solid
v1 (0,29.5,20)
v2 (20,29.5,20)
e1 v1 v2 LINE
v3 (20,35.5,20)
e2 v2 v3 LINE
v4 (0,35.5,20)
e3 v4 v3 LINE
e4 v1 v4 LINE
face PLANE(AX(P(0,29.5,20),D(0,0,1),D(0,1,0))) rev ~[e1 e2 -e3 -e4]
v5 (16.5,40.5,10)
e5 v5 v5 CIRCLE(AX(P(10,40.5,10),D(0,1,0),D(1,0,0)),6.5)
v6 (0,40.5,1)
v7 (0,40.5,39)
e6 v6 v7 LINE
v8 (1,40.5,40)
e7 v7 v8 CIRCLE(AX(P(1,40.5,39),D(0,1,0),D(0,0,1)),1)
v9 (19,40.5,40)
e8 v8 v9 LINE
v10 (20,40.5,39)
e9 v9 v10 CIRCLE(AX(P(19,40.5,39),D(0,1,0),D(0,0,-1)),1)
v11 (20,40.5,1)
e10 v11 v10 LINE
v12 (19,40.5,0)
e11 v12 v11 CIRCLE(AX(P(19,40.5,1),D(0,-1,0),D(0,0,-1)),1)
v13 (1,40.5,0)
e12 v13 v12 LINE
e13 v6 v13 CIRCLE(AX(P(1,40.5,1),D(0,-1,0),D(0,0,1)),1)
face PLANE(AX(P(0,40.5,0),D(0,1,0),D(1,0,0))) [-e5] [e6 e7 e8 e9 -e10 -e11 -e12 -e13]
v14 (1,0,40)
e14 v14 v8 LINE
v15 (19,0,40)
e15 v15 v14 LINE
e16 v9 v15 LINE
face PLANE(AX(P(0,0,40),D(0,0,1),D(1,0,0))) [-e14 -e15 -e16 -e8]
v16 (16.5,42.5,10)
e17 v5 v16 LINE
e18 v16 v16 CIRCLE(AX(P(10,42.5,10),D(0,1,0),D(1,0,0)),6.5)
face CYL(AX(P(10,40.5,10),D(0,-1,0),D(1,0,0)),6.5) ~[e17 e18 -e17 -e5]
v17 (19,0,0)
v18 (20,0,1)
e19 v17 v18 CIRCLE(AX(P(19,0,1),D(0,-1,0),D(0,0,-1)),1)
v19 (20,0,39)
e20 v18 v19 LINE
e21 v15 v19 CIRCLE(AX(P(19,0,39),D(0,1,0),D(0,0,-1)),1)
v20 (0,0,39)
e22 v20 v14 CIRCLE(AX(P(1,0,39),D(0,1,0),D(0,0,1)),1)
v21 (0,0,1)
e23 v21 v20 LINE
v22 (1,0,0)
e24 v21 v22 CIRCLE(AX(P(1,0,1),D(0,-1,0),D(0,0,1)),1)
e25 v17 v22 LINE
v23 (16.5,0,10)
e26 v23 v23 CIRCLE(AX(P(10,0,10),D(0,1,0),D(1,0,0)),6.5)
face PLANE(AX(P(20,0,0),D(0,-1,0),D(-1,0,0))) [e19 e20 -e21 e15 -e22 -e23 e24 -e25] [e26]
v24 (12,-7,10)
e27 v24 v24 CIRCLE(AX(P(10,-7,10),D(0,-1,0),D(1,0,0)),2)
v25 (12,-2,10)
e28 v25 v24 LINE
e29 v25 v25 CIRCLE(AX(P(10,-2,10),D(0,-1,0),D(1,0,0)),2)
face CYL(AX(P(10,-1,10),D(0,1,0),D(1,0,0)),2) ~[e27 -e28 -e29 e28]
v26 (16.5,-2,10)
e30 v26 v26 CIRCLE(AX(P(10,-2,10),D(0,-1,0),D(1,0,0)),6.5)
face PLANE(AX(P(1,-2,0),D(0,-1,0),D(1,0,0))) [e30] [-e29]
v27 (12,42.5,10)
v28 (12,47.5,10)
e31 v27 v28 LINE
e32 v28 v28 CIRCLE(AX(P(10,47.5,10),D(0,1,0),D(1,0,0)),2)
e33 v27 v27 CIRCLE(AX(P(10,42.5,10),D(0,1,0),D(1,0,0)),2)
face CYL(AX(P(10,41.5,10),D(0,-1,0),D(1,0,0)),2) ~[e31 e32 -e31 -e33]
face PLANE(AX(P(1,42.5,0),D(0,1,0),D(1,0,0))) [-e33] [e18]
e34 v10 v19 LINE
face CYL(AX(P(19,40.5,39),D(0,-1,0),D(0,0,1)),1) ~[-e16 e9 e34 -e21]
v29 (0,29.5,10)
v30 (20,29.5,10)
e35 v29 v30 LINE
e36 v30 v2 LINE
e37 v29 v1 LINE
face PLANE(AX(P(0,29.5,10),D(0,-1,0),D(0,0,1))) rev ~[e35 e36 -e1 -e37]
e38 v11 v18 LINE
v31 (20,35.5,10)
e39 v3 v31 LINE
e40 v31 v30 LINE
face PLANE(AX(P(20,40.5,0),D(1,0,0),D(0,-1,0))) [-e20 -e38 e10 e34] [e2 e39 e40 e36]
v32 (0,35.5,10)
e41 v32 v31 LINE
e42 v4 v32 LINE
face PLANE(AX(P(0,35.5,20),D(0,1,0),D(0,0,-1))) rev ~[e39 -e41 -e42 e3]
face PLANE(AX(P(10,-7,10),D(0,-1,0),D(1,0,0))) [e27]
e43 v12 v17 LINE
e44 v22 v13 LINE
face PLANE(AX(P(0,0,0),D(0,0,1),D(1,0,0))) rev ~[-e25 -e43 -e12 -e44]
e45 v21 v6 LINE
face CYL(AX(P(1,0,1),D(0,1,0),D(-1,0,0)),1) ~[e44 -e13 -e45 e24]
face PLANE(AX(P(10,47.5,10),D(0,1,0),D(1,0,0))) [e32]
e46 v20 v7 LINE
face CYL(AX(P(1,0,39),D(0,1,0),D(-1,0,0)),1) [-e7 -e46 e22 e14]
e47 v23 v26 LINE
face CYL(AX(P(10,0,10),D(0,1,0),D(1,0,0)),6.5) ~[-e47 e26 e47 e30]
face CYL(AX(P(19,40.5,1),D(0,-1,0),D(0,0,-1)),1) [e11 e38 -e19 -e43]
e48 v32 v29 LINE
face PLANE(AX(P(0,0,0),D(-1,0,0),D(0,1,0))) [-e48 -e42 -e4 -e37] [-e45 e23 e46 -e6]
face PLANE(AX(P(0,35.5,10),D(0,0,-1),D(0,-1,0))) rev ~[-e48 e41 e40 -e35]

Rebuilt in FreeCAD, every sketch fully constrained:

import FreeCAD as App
import Part
import Sketcher

V = App.Vector
Q = App.Units.Quantity


def edges_at(feature, points):
    """Names of the edges that pass closest to the given points."""
    edges = feature.Shape.Edges
    near = lambda p: min(range(len(edges)), key=lambda i: edges[i].distToShape(Part.Vertex(*p))[0])
    return sorted({f"Edge{near(p) + 1}" for p in points})

doc = App.newDocument("Part")
params = doc.addObject("Spreadsheet::Sheet", "Params")
for row, (alias, value) in enumerate([
    ("sketch1_width", "20 mm"),
    ("sketch1_height", "40.5 mm"),
    ("pad1_length", "40 mm"),
    ("sketch2_diameter", "10 mm"),
    ("pad2_length", "1 mm"),
    ("sketch3_diameter", "4 mm"),
    ("pad3_length", "6 mm"),
    ("fillet_radius", "1 mm"),
    ("sketch4_diameter", "10 mm"),
    ("pad4_length", "1 mm"),
    ("sketch5_diameter", "4 mm"),
    ("pad5_length", "6 mm"),
    ("sketch6_width", "6 mm"),
    ("sketch6_height", "10 mm"),
    ("sketch7_diameter", "13 mm"),
    ("sketch7_diameter2", "4 mm"),
    ("pad6_length", "2 mm"),
    ("sketch8_diameter", "13 mm"),
    ("sketch8_diameter2", "4 mm"),
    ("pad7_length", "2 mm"),
], start=1):
    params.set(f"A{row}", alias)
    params.set(f"B{row}", "=" + value)
    params.setAlias(f"B{row}", alias)

body = doc.addObject("PartDesign::Body", "Body")

# Sketch on XY plane
sketch1 = doc.addObject("Sketcher::SketchObject", "Sketch")
body.addObject(sketch1)
sketch1.AttachmentSupport = (doc.XY_Plane, [""])
sketch1.MapMode = "FlatFace"
sketch1.addGeometry([
    Part.LineSegment(V(0, 40.5, 0), V(0, 0, 0)),
    Part.LineSegment(V(0, 0, 0), V(20, 0, 0)),
    Part.LineSegment(V(20, 0, 0), V(20, 40.5, 0)),
    Part.LineSegment(V(20, 40.5, 0), V(0, 40.5, 0)),
], False)
sketch1.addConstraint([
    Sketcher.Constraint("Coincident", 0, 2, 1, 1),
    Sketcher.Constraint("Coincident", 1, 2, 2, 1),
    Sketcher.Constraint("Coincident", 2, 2, 3, 1),
    Sketcher.Constraint("Coincident", 3, 2, 0, 1),
    Sketcher.Constraint("Vertical", 0),
    Sketcher.Constraint("Horizontal", 1),
    Sketcher.Constraint("Vertical", 2),
    Sketcher.Constraint("Horizontal", 3),
    Sketcher.Constraint("Coincident", 0, 2, -1, 1),
    Sketcher.Constraint("DistanceX", 1, 1, 1, 2, Q("20 mm")),
    Sketcher.Constraint("DistanceY", 0, 2, 0, 1, Q("40.5 mm")),
])
sketch1.setExpression("Constraints[9]", "Params.sketch1_width")
sketch1.setExpression("Constraints[10]", "Params.sketch1_height")
pad1 = doc.addObject("PartDesign::Pad", "Pad")
body.addObject(pad1)
pad1.Profile = sketch1
pad1.setExpression("Length", "Params.pad1_length")

# Sketch on XZ plane
sketch2 = doc.addObject("Sketcher::SketchObject", "Sketch001")
body.addObject(sketch2)
sketch2.AttachmentSupport = (doc.XZ_Plane, [""])
sketch2.MapMode = "FlatFace"
sketch2.AttachmentOffset = App.Placement(V(0, 0, -40.5), App.Rotation())
sketch2.addGeometry(Part.Circle(V(10, 10, 0), V(0, 0, 1), 5), False)
sketch2.addConstraint([
    Sketcher.Constraint("Diameter", 0, Q("10 mm")),
    Sketcher.Constraint("DistanceX", -1, 1, 0, 3, Q("10 mm")),
    Sketcher.Constraint("DistanceY", -1, 1, 0, 3, Q("10 mm")),
])
sketch2.setExpression("Constraints[0]", "Params.sketch2_diameter")
pad2 = doc.addObject("PartDesign::Pad", "Pad001")
body.addObject(pad2)
pad2.Profile = sketch2
pad2.setExpression("Length", "Params.pad2_length")
pad2.Reversed = True

# Sketch on XZ plane
sketch3 = doc.addObject("Sketcher::SketchObject", "Sketch002")
body.addObject(sketch3)
sketch3.AttachmentSupport = (doc.XZ_Plane, [""])
sketch3.MapMode = "FlatFace"
sketch3.AttachmentOffset = App.Placement(V(0, 0, -41.5), App.Rotation())
sketch3.addGeometry(Part.Circle(V(10, 10, 0), V(0, 0, 1), 2), False)
sketch3.addConstraint([
    Sketcher.Constraint("Diameter", 0, Q("4 mm")),
    Sketcher.Constraint("DistanceX", -1, 1, 0, 3, Q("10 mm")),
    Sketcher.Constraint("DistanceY", -1, 1, 0, 3, Q("10 mm")),
])
sketch3.setExpression("Constraints[0]", "Params.sketch3_diameter")
pad3 = doc.addObject("PartDesign::Pad", "Pad002")
body.addObject(pad3)
pad3.Profile = sketch3
pad3.setExpression("Length", "Params.pad3_length")
pad3.Reversed = True
doc.recompute()

fillet = doc.addObject("PartDesign::Fillet", "Fillet")
body.addObject(fillet)
fillet.Base = (pad3, edges_at(pad3, [
    (0, 20.25, 40),
    (20, 20.25, 40),
    (20, 20.25, 0),
    (0, 20.25, 0),
]))
fillet.setExpression("Radius", "Params.fillet_radius")

# Sketch on XZ plane
sketch4 = doc.addObject("Sketcher::SketchObject", "Sketch003")
body.addObject(sketch4)
sketch4.AttachmentSupport = (doc.XZ_Plane, [""])
sketch4.MapMode = "FlatFace"
sketch4.addGeometry(Part.Circle(V(10, 10, 0), V(0, 0, 1), 5), False)
sketch4.addConstraint([
    Sketcher.Constraint("Diameter", 0, Q("10 mm")),
    Sketcher.Constraint("DistanceX", -1, 1, 0, 3, Q("10 mm")),
    Sketcher.Constraint("DistanceY", -1, 1, 0, 3, Q("10 mm")),
])
sketch4.setExpression("Constraints[0]", "Params.sketch4_diameter")
pad4 = doc.addObject("PartDesign::Pad", "Pad003")
body.addObject(pad4)
pad4.Profile = sketch4
pad4.setExpression("Length", "Params.pad4_length")

# Sketch on XZ plane
sketch5 = doc.addObject("Sketcher::SketchObject", "Sketch004")
body.addObject(sketch5)
sketch5.AttachmentSupport = (doc.XZ_Plane, [""])
sketch5.MapMode = "FlatFace"
sketch5.AttachmentOffset = App.Placement(V(0, 0, 1), App.Rotation())
sketch5.addGeometry(Part.Circle(V(10, 10, 0), V(0, 0, 1), 2), False)
sketch5.addConstraint([
    Sketcher.Constraint("Diameter", 0, Q("4 mm")),
    Sketcher.Constraint("DistanceX", -1, 1, 0, 3, Q("10 mm")),
    Sketcher.Constraint("DistanceY", -1, 1, 0, 3, Q("10 mm")),
])
sketch5.setExpression("Constraints[0]", "Params.sketch5_diameter")
pad5 = doc.addObject("PartDesign::Pad", "Pad004")
body.addObject(pad5)
pad5.Profile = sketch5
pad5.setExpression("Length", "Params.pad5_length")

# Sketch on YZ plane
sketch6 = doc.addObject("Sketcher::SketchObject", "Sketch005")
body.addObject(sketch6)
sketch6.AttachmentSupport = (doc.YZ_Plane, [""])
sketch6.MapMode = "FlatFace"
sketch6.addGeometry([
    Part.LineSegment(V(35.5, 20, 0), V(35.5, 10, 0)),
    Part.LineSegment(V(35.5, 10, 0), V(29.5, 10, 0)),
    Part.LineSegment(V(29.5, 10, 0), V(29.5, 20, 0)),
    Part.LineSegment(V(29.5, 20, 0), V(35.5, 20, 0)),
], False)
sketch6.addConstraint([
    Sketcher.Constraint("Coincident", 0, 2, 1, 1),
    Sketcher.Constraint("Coincident", 1, 2, 2, 1),
    Sketcher.Constraint("Coincident", 2, 2, 3, 1),
    Sketcher.Constraint("Coincident", 3, 2, 0, 1),
    Sketcher.Constraint("Vertical", 0),
    Sketcher.Constraint("Horizontal", 1),
    Sketcher.Constraint("Vertical", 2),
    Sketcher.Constraint("Horizontal", 3),
    Sketcher.Constraint("DistanceX", 1, 2, 1, 1, Q("6 mm")),
    Sketcher.Constraint("DistanceY", 0, 2, 0, 1, Q("10 mm")),
    Sketcher.Constraint("DistanceY", -1, 1, 0, 2, Q("10 mm")),
    Sketcher.Constraint("DistanceX", -1, 1, 0, 2, Q("35.5 mm")),
])
sketch6.setExpression("Constraints[8]", "Params.sketch6_width")
sketch6.setExpression("Constraints[9]", "Params.sketch6_height")
pocket1 = doc.addObject("PartDesign::Pocket", "Pocket")
body.addObject(pocket1)
pocket1.Profile = sketch6
pocket1.Type = "UpToFirst"
pocket1.Reversed = True

# Sketch on XZ plane
sketch7 = doc.addObject("Sketcher::SketchObject", "Sketch006")
body.addObject(sketch7)
sketch7.AttachmentSupport = (doc.XZ_Plane, [""])
sketch7.MapMode = "FlatFace"
sketch7.addGeometry([
    Part.Circle(V(10, 10, 0), V(0, 0, 1), 6.5),
    Part.Circle(V(10, 10, 0), V(0, 0, 1), 2),
], False)
sketch7.addConstraint([
    Sketcher.Constraint("Coincident", 1, 3, 0, 3),
    Sketcher.Constraint("Diameter", 0, Q("13 mm")),
    Sketcher.Constraint("Diameter", 1, Q("4 mm")),
    Sketcher.Constraint("DistanceX", -1, 1, 0, 3, Q("10 mm")),
    Sketcher.Constraint("DistanceY", -1, 1, 0, 3, Q("10 mm")),
])
sketch7.setExpression("Constraints[1]", "Params.sketch7_diameter")
sketch7.setExpression("Constraints[2]", "Params.sketch7_diameter2")
pad6 = doc.addObject("PartDesign::Pad", "Pad005")
body.addObject(pad6)
pad6.Profile = sketch7
pad6.setExpression("Length", "Params.pad6_length")

# Sketch on XZ plane
sketch8 = doc.addObject("Sketcher::SketchObject", "Sketch007")
body.addObject(sketch8)
sketch8.AttachmentSupport = (doc.XZ_Plane, [""])
sketch8.MapMode = "FlatFace"
sketch8.AttachmentOffset = App.Placement(V(0, 0, -40.5), App.Rotation())
sketch8.addGeometry([
    Part.Circle(V(10, 10, 0), V(0, 0, 1), 6.5),
    Part.Circle(V(10, 10, 0), V(0, 0, 1), 2),
], False)
sketch8.addConstraint([
    Sketcher.Constraint("Coincident", 1, 3, 0, 3),
    Sketcher.Constraint("Diameter", 0, Q("13 mm")),
    Sketcher.Constraint("Diameter", 1, Q("4 mm")),
    Sketcher.Constraint("DistanceX", -1, 1, 0, 3, Q("10 mm")),
    Sketcher.Constraint("DistanceY", -1, 1, 0, 3, Q("10 mm")),
])
sketch8.setExpression("Constraints[1]", "Params.sketch8_diameter")
sketch8.setExpression("Constraints[2]", "Params.sketch8_diameter2")
pad7 = doc.addObject("PartDesign::Pad", "Pad006")
body.addObject(pad7)
pad7.Profile = sketch8
pad7.setExpression("Length", "Params.pad7_length")
pad7.Reversed = True

doc.recompute()
